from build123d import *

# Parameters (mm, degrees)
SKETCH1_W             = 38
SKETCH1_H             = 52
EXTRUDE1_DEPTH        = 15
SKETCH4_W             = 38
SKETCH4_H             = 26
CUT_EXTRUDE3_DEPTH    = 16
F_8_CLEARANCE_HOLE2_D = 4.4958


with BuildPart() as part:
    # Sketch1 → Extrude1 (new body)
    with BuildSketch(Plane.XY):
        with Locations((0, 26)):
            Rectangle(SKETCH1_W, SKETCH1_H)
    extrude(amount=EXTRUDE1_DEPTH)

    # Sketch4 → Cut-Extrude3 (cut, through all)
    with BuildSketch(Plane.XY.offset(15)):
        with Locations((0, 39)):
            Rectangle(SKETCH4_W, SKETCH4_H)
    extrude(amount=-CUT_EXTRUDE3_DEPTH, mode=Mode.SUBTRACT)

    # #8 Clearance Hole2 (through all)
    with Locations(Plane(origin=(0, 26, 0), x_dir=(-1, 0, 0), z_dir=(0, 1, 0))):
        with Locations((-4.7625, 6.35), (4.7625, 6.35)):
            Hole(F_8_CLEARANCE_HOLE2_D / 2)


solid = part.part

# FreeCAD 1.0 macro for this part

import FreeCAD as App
import Part
import Sketcher

doc = App.newDocument("Part")
body = doc.addObject("PartDesign::Body", "Body")

sketch1 = body.newObject("Sketcher::SketchObject", "Sketch")
sketch1.AttachmentSupport = (doc.getObject("XY_Plane"), [""])
sketch1.MapMode = "FlatFace"
sketch1.addGeometry(Part.LineSegment(App.Vector(-19, 52, 0), App.Vector(-19, 0, 0)), False)
sketch1.addGeometry(Part.LineSegment(App.Vector(-19, 0, 0), App.Vector(19, 0, 0)), False)
sketch1.addGeometry(Part.LineSegment(App.Vector(19, 0, 0), App.Vector(19, 52, 0)), False)
sketch1.addGeometry(Part.LineSegment(App.Vector(19, 52, 0), App.Vector(-19, 52, 0)), False)
sketch1.addConstraint(Sketcher.Constraint("Coincident", 0, 2, 1, 1))
sketch1.addConstraint(Sketcher.Constraint("Coincident", 1, 2, 2, 1))
sketch1.addConstraint(Sketcher.Constraint("Coincident", 2, 2, 3, 1))
sketch1.addConstraint(Sketcher.Constraint("Coincident", 3, 2, 0, 1))
sketch1.addConstraint(Sketcher.Constraint("Vertical", 0))
sketch1.addConstraint(Sketcher.Constraint("Horizontal", 1))
sketch1.addConstraint(Sketcher.Constraint("Vertical", 2))
sketch1.addConstraint(Sketcher.Constraint("Horizontal", 3))
sketch1.addConstraint(Sketcher.Constraint("Symmetric", 0, 2, 1, 2, -1, 1))
sketch1.addConstraint(Sketcher.Constraint("DistanceX", 1, 1, 1, 2, 38.0))
sketch1.addConstraint(Sketcher.Constraint("DistanceY", 0, 2, 0, 1, 52.0))
pad1 = body.newObject("PartDesign::Pad", "Pad")
pad1.Profile = sketch1
pad1.Length = 15

sketch2 = body.newObject("Sketcher::SketchObject", "Sketch001")
sketch2.AttachmentSupport = (doc.getObject("XY_Plane"), [""])
sketch2.MapMode = "FlatFace"
sketch2.AttachmentOffset = App.Placement(App.Vector(0, 0, 15), App.Rotation())
sketch2.addGeometry(Part.LineSegment(App.Vector(-19, 52, 0), App.Vector(-19, 26, 0)), False)
sketch2.addGeometry(Part.LineSegment(App.Vector(-19, 26, 0), App.Vector(19, 26, 0)), False)
sketch2.addGeometry(Part.LineSegment(App.Vector(19, 26, 0), App.Vector(19, 52, 0)), False)
sketch2.addGeometry(Part.LineSegment(App.Vector(19, 52, 0), App.Vector(-19, 52, 0)), False)
sketch2.addConstraint(Sketcher.Constraint("Coincident", 0, 2, 1, 1))
sketch2.addConstraint(Sketcher.Constraint("Coincident", 1, 2, 2, 1))
sketch2.addConstraint(Sketcher.Constraint("Coincident", 2, 2, 3, 1))
sketch2.addConstraint(Sketcher.Constraint("Coincident", 3, 2, 0, 1))
sketch2.addConstraint(Sketcher.Constraint("Vertical", 0))
sketch2.addConstraint(Sketcher.Constraint("Horizontal", 1))
sketch2.addConstraint(Sketcher.Constraint("Vertical", 2))
sketch2.addConstraint(Sketcher.Constraint("Horizontal", 3))
sketch2.addConstraint(Sketcher.Constraint("DistanceX", 1, 1, 1, 2, 38.0))
sketch2.addConstraint(Sketcher.Constraint("DistanceY", 0, 2, 0, 1, 26.0))
sketch2.addConstraint(Sketcher.Constraint("DistanceX", 0, 2, -1, 1, 19.0))
sketch2.addConstraint(Sketcher.Constraint("DistanceY", -1, 1, 0, 2, 26.0))
pocket1 = body.newObject("PartDesign::Pocket", "Pocket")
pocket1.Profile = sketch2
pocket1.Type = "ThroughAll"

sketch3 = body.newObject("Sketcher::SketchObject", "Sketch002")
sketch3.AttachmentSupport = (doc.getObject("XZ_Plane"), [""])
sketch3.MapMode = "FlatFace"
sketch3.AttachmentOffset = App.Placement(App.Vector(0, 0, -26), App.Rotation())
sketch3.addGeometry(Part.Circle(App.Vector(4.8, 6.3, 0), App.Vector(0, 0, 1), 2.2), False)
sketch3.addGeometry(Part.Circle(App.Vector(-4.8, 6.3, 0), App.Vector(0, 0, 1), 2.2), False)
sketch3.addConstraint(Sketcher.Constraint("Equal", 0, 1))
sketch3.addConstraint(Sketcher.Constraint("Symmetric", 0, 3, 1, 3, -2))
sketch3.addConstraint(Sketcher.Constraint("Diameter", 0, 4.4958))
sketch3.addConstraint(Sketcher.Constraint("DistanceY", -1, 1, 0, 3, 6.35))
sketch3.addConstraint(Sketcher.Constraint("DistanceX", 1, 3, 0, 3, 9.525))
doc.recompute()
hole = body.newObject("PartDesign::Hole", "Hole")
hole.Profile = sketch3
hole.ThreadType = "None"
hole.Diameter = 4.4958
hole.DepthType = "ThroughAll"
hole.Reversed = True

doc.recompute()
